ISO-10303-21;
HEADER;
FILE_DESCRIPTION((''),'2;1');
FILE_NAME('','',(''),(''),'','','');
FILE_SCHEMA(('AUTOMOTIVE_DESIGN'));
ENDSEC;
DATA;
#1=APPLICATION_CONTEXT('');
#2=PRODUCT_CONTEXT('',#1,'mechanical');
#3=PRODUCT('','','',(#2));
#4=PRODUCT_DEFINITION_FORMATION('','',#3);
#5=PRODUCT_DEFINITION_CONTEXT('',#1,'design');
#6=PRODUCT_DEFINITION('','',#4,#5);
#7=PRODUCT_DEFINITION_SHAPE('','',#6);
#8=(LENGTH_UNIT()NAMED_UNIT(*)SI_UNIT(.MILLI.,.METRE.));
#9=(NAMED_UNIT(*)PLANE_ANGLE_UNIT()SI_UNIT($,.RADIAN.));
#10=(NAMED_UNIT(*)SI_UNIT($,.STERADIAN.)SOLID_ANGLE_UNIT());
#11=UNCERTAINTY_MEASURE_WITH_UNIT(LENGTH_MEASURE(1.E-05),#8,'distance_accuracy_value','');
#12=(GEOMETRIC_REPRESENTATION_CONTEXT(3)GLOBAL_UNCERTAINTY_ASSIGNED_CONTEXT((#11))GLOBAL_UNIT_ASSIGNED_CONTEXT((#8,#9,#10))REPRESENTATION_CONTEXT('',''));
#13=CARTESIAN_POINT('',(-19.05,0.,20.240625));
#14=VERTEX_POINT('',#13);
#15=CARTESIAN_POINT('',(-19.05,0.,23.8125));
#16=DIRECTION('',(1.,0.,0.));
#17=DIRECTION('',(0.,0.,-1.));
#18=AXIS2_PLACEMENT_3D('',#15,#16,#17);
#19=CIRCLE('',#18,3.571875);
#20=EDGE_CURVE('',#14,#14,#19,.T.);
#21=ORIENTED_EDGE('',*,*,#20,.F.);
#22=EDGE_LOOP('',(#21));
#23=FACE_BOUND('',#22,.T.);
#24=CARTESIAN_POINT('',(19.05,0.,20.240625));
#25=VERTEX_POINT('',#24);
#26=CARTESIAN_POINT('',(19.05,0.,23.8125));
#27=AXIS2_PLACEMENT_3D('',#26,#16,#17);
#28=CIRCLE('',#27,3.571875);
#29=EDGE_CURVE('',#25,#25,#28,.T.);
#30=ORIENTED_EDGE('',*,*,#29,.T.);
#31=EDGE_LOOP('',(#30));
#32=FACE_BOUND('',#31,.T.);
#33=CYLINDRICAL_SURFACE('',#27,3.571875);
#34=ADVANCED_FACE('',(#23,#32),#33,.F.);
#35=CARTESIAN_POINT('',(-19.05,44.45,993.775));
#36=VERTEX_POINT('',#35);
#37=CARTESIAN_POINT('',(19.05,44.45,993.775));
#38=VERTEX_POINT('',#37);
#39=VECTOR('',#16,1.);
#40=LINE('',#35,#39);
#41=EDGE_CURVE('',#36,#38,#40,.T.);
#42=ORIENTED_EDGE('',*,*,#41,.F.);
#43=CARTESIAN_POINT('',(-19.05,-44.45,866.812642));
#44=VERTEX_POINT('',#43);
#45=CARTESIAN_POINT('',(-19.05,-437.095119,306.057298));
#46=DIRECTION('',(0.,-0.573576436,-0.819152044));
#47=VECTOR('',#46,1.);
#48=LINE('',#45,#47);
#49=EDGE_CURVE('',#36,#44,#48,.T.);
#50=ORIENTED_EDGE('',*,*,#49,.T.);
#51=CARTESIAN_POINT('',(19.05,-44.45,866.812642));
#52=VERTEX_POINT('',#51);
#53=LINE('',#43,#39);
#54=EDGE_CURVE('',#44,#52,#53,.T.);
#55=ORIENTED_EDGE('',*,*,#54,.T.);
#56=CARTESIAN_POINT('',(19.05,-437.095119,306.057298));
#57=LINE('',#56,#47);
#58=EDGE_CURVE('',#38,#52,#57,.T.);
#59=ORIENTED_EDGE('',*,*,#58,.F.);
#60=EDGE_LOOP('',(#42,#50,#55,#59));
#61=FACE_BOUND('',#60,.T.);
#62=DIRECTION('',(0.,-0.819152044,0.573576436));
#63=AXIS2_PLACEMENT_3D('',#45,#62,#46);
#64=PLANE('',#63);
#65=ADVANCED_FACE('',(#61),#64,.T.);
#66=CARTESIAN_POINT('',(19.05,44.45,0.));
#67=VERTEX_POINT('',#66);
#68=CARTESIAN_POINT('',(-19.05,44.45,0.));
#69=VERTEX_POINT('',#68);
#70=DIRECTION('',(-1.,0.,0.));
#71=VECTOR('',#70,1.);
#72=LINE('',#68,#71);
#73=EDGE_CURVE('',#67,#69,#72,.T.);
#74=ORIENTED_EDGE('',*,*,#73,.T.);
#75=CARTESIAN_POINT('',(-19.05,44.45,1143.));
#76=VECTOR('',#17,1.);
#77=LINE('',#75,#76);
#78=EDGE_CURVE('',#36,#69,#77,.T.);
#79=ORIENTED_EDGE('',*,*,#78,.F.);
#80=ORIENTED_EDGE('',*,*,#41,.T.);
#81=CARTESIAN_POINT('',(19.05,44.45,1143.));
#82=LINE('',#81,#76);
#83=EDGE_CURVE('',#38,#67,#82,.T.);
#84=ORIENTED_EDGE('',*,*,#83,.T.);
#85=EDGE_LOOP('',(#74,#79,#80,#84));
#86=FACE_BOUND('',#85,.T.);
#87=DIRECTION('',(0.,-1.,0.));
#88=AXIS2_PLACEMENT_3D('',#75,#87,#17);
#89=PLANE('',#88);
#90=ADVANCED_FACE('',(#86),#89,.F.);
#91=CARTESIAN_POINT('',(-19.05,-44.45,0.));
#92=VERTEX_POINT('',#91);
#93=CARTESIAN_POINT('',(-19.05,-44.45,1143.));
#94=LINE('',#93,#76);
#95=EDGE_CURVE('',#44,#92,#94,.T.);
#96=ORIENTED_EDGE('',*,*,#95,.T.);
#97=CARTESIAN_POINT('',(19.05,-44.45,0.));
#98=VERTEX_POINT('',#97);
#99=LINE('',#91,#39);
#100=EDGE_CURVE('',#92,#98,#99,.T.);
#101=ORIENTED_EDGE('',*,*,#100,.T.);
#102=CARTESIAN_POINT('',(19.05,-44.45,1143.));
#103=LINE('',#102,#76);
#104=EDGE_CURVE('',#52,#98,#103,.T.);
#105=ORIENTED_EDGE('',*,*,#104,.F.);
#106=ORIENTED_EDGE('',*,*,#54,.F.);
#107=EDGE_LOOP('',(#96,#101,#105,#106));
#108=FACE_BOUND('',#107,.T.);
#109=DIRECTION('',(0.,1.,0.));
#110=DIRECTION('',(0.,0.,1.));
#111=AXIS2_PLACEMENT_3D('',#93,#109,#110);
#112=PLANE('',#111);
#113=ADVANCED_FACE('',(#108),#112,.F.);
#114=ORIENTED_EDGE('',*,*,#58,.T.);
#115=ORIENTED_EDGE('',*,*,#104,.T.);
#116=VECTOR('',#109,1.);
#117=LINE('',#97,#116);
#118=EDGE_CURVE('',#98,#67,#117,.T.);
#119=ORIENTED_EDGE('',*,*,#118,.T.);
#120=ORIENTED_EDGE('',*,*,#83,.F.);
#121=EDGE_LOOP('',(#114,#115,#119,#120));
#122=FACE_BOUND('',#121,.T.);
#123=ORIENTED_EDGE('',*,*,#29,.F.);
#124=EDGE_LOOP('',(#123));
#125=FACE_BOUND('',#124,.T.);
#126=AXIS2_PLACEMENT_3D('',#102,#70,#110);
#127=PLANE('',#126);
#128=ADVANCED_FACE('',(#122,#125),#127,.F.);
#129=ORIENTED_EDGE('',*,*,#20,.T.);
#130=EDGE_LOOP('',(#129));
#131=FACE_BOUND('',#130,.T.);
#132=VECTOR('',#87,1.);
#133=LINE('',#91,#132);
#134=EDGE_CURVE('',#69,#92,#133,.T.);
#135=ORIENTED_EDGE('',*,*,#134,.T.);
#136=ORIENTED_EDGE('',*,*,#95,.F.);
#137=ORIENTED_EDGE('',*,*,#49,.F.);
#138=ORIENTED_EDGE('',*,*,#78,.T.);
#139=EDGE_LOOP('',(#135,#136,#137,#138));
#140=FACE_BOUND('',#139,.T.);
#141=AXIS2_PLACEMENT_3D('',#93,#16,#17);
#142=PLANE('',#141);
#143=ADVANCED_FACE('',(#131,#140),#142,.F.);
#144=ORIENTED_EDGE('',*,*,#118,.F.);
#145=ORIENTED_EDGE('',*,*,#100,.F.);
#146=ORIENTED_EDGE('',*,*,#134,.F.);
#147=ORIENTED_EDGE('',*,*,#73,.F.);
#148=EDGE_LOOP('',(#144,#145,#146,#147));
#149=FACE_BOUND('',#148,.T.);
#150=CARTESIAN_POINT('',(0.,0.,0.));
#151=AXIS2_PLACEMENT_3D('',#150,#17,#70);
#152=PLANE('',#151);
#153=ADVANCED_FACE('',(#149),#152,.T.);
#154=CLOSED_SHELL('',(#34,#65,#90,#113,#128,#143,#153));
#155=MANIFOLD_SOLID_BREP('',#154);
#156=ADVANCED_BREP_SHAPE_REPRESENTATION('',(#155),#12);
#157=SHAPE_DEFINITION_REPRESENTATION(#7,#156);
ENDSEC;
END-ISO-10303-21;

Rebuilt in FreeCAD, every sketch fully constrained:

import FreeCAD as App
import Part
import Sketcher
from FreeCAD import Vector
Q = App.Units.Quantity


def add_polygon(sketch, points):
    """Adds a closed chain of lines whose ends are joined by coincident constraints."""
    first, n = sketch.GeometryCount, len(points)
    for a, b in zip(points, points[1:] + points[:1]):
        sketch.addGeometry(Part.LineSegment(App.Vector(*a, 0), App.Vector(*b, 0)), False)
    for i in range(n):
        sketch.addConstraint(Sketcher.Constraint("Coincident", first + i, 2, first + (i + 1) % n, 1))

doc = App.newDocument("Part")
params = doc.addObject("Spreadsheet::Sheet", "Params")
for row, (alias, value) in enumerate([
    ("sketch1_width", "1.5 in"),
    ("sketch1_height", "3.5 in"),
    ("pad1_length", "45 in"),
    ("sketch2_diameter", "0.28125 in"),
    ("hole_diameter", "0.28125 in"),
    ("sketch3_diameter", "0.28125 in"),
    ("sketch3_width", "3.5 in"),
    ("sketch3_height", "5.875 in"),
], start=1):
    params.set(f"A{row}", alias)
    params.set(f"B{row}", "=" + value)
    params.setAlias(f"B{row}", alias)

body = doc.addObject("PartDesign::Body", "Body")

# Sketch on XY plane
sketch1 = body.newObject("Sketcher::SketchObject", "Sketch")
sketch1.AttachmentSupport = (doc.getObject("XY_Plane"), [""])
sketch1.MapMode = "FlatFace"
add_polygon(sketch1, [(-19, 44), (-19, -44), (19, -44), (19, 44)])  # lines 0-3
sketch1.addConstraint(Sketcher.Constraint("Vertical", 0))
sketch1.addConstraint(Sketcher.Constraint("Horizontal", 1))
sketch1.addConstraint(Sketcher.Constraint("Vertical", 2))
sketch1.addConstraint(Sketcher.Constraint("Horizontal", 3))
sketch1.addConstraint(Sketcher.Constraint("Symmetric", 0, 2, 2, 2, -1, 1))
sketch1.addConstraint(Sketcher.Constraint("DistanceX", 1, 1, 1, 2, Q("1.5 in")))
sketch1.addConstraint(Sketcher.Constraint("DistanceY", 0, 2, 0, 1, Q("3.5 in")))
sketch1.setExpression("Constraints[9]", "Params.sketch1_width")
sketch1.setExpression("Constraints[10]", "Params.sketch1_height")
pad1 = body.newObject("PartDesign::Pad", "Pad")
pad1.Profile = sketch1
pad1.setExpression("Length", "Params.pad1_length")

# Sketch on YZ plane
sketch2 = body.newObject("Sketcher::SketchObject", "Sketch001")
sketch2.AttachmentSupport = (doc.getObject("YZ_Plane"), [""])
sketch2.MapMode = "FlatFace"
sketch2.AttachmentOffset = App.Placement(Vector(0, 0, 0.75 * 25.4), App.Rotation())
sketch2.addGeometry(Part.Circle(Vector(0, 1128.7, 0), Vector(0, 0, 1), 3.6), False)
sketch2.addGeometry(Part.Circle(Vector(0, 23.8, 0), Vector(0, 0, 1), 3.6), False)
sketch2.addConstraint(Sketcher.Constraint("Equal", 0, 1))
sketch2.addConstraint(Sketcher.Constraint("PointOnObject", 0, 3, -2))
sketch2.addConstraint(Sketcher.Constraint("PointOnObject", 1, 3, -2))
sketch2.addConstraint(Sketcher.Constraint("Diameter", 0, Q("0.28125 in")))
sketch2.addConstraint(Sketcher.Constraint("DistanceY", 1, 3, 0, 3, Q("43.5 in")))
sketch2.addConstraint(Sketcher.Constraint("DistanceY", -1, 1, 0, 3, Q("44.4375 in")))
sketch2.setExpression("Constraints[3]", "Params.sketch2_diameter")
doc.recompute()
hole = body.newObject("PartDesign::Hole", "Hole")
hole.Profile = sketch2
hole.ThreadType = "None"
hole.setExpression("Diameter", "Params.hole_diameter")
hole.DepthType = "ThroughAll"

# Sketch on YZ plane
sketch3 = body.newObject("Sketcher::SketchObject", "Sketch002")
sketch3.AttachmentSupport = (doc.getObject("YZ_Plane"), [""])
sketch3.MapMode = "FlatFace"
sketch3.AttachmentOffset = App.Placement(Vector(0, 0, 0.75 * 25.4), App.Rotation())
add_polygon(sketch3, [(-44.5, 866.8), (44.5, 993.8), (44.5, 1143), (-44.5, 1143)])  # lines 0-3
sketch3.addGeometry(Part.Circle(Vector(0, 1128.7, 0), Vector(0, 0, 1), 3.6), False)  # 4
sketch3.addConstraint(Sketcher.Constraint("Vertical", 1))
sketch3.addConstraint(Sketcher.Constraint("Horizontal", 2))
sketch3.addConstraint(Sketcher.Constraint("Vertical", 3))
sketch3.addConstraint(Sketcher.Constraint("PointOnObject", 4, 3, -2))
sketch3.addConstraint(Sketcher.Constraint("Diameter", 4, Q("0.28125 in")))
sketch3.addConstraint(Sketcher.Constraint("DistanceX", 2, 2, 2, 1, Q("3.5 in")))
sketch3.addConstraint(Sketcher.Constraint("DistanceY", -1, 1, 1, 2, Q("45 in")))
sketch3.addConstraint(Sketcher.Constraint("Angle", 0, Q("55 deg")))
sketch3.addConstraint(Sketcher.Constraint("DistanceY", 1, 1, 1, 2, Q("5.875 in")))
sketch3.addConstraint(Sketcher.Constraint("DistanceX", -1, 1, 0, 2, Q("1.75 in")))
sketch3.addConstraint(Sketcher.Constraint("DistanceY", -1, 1, 4, 3, Q("44.4375 in")))
sketch3.setExpression("Constraints[8]", "Params.sketch3_diameter")
sketch3.setExpression("Constraints[9]", "Params.sketch3_width")
sketch3.setExpression("Constraints[12]", "Params.sketch3_height")
pocket1 = body.newObject("PartDesign::Pocket", "Pocket")
pocket1.Profile = sketch3
pocket1.Type = "ThroughAll"

doc.recompute()
